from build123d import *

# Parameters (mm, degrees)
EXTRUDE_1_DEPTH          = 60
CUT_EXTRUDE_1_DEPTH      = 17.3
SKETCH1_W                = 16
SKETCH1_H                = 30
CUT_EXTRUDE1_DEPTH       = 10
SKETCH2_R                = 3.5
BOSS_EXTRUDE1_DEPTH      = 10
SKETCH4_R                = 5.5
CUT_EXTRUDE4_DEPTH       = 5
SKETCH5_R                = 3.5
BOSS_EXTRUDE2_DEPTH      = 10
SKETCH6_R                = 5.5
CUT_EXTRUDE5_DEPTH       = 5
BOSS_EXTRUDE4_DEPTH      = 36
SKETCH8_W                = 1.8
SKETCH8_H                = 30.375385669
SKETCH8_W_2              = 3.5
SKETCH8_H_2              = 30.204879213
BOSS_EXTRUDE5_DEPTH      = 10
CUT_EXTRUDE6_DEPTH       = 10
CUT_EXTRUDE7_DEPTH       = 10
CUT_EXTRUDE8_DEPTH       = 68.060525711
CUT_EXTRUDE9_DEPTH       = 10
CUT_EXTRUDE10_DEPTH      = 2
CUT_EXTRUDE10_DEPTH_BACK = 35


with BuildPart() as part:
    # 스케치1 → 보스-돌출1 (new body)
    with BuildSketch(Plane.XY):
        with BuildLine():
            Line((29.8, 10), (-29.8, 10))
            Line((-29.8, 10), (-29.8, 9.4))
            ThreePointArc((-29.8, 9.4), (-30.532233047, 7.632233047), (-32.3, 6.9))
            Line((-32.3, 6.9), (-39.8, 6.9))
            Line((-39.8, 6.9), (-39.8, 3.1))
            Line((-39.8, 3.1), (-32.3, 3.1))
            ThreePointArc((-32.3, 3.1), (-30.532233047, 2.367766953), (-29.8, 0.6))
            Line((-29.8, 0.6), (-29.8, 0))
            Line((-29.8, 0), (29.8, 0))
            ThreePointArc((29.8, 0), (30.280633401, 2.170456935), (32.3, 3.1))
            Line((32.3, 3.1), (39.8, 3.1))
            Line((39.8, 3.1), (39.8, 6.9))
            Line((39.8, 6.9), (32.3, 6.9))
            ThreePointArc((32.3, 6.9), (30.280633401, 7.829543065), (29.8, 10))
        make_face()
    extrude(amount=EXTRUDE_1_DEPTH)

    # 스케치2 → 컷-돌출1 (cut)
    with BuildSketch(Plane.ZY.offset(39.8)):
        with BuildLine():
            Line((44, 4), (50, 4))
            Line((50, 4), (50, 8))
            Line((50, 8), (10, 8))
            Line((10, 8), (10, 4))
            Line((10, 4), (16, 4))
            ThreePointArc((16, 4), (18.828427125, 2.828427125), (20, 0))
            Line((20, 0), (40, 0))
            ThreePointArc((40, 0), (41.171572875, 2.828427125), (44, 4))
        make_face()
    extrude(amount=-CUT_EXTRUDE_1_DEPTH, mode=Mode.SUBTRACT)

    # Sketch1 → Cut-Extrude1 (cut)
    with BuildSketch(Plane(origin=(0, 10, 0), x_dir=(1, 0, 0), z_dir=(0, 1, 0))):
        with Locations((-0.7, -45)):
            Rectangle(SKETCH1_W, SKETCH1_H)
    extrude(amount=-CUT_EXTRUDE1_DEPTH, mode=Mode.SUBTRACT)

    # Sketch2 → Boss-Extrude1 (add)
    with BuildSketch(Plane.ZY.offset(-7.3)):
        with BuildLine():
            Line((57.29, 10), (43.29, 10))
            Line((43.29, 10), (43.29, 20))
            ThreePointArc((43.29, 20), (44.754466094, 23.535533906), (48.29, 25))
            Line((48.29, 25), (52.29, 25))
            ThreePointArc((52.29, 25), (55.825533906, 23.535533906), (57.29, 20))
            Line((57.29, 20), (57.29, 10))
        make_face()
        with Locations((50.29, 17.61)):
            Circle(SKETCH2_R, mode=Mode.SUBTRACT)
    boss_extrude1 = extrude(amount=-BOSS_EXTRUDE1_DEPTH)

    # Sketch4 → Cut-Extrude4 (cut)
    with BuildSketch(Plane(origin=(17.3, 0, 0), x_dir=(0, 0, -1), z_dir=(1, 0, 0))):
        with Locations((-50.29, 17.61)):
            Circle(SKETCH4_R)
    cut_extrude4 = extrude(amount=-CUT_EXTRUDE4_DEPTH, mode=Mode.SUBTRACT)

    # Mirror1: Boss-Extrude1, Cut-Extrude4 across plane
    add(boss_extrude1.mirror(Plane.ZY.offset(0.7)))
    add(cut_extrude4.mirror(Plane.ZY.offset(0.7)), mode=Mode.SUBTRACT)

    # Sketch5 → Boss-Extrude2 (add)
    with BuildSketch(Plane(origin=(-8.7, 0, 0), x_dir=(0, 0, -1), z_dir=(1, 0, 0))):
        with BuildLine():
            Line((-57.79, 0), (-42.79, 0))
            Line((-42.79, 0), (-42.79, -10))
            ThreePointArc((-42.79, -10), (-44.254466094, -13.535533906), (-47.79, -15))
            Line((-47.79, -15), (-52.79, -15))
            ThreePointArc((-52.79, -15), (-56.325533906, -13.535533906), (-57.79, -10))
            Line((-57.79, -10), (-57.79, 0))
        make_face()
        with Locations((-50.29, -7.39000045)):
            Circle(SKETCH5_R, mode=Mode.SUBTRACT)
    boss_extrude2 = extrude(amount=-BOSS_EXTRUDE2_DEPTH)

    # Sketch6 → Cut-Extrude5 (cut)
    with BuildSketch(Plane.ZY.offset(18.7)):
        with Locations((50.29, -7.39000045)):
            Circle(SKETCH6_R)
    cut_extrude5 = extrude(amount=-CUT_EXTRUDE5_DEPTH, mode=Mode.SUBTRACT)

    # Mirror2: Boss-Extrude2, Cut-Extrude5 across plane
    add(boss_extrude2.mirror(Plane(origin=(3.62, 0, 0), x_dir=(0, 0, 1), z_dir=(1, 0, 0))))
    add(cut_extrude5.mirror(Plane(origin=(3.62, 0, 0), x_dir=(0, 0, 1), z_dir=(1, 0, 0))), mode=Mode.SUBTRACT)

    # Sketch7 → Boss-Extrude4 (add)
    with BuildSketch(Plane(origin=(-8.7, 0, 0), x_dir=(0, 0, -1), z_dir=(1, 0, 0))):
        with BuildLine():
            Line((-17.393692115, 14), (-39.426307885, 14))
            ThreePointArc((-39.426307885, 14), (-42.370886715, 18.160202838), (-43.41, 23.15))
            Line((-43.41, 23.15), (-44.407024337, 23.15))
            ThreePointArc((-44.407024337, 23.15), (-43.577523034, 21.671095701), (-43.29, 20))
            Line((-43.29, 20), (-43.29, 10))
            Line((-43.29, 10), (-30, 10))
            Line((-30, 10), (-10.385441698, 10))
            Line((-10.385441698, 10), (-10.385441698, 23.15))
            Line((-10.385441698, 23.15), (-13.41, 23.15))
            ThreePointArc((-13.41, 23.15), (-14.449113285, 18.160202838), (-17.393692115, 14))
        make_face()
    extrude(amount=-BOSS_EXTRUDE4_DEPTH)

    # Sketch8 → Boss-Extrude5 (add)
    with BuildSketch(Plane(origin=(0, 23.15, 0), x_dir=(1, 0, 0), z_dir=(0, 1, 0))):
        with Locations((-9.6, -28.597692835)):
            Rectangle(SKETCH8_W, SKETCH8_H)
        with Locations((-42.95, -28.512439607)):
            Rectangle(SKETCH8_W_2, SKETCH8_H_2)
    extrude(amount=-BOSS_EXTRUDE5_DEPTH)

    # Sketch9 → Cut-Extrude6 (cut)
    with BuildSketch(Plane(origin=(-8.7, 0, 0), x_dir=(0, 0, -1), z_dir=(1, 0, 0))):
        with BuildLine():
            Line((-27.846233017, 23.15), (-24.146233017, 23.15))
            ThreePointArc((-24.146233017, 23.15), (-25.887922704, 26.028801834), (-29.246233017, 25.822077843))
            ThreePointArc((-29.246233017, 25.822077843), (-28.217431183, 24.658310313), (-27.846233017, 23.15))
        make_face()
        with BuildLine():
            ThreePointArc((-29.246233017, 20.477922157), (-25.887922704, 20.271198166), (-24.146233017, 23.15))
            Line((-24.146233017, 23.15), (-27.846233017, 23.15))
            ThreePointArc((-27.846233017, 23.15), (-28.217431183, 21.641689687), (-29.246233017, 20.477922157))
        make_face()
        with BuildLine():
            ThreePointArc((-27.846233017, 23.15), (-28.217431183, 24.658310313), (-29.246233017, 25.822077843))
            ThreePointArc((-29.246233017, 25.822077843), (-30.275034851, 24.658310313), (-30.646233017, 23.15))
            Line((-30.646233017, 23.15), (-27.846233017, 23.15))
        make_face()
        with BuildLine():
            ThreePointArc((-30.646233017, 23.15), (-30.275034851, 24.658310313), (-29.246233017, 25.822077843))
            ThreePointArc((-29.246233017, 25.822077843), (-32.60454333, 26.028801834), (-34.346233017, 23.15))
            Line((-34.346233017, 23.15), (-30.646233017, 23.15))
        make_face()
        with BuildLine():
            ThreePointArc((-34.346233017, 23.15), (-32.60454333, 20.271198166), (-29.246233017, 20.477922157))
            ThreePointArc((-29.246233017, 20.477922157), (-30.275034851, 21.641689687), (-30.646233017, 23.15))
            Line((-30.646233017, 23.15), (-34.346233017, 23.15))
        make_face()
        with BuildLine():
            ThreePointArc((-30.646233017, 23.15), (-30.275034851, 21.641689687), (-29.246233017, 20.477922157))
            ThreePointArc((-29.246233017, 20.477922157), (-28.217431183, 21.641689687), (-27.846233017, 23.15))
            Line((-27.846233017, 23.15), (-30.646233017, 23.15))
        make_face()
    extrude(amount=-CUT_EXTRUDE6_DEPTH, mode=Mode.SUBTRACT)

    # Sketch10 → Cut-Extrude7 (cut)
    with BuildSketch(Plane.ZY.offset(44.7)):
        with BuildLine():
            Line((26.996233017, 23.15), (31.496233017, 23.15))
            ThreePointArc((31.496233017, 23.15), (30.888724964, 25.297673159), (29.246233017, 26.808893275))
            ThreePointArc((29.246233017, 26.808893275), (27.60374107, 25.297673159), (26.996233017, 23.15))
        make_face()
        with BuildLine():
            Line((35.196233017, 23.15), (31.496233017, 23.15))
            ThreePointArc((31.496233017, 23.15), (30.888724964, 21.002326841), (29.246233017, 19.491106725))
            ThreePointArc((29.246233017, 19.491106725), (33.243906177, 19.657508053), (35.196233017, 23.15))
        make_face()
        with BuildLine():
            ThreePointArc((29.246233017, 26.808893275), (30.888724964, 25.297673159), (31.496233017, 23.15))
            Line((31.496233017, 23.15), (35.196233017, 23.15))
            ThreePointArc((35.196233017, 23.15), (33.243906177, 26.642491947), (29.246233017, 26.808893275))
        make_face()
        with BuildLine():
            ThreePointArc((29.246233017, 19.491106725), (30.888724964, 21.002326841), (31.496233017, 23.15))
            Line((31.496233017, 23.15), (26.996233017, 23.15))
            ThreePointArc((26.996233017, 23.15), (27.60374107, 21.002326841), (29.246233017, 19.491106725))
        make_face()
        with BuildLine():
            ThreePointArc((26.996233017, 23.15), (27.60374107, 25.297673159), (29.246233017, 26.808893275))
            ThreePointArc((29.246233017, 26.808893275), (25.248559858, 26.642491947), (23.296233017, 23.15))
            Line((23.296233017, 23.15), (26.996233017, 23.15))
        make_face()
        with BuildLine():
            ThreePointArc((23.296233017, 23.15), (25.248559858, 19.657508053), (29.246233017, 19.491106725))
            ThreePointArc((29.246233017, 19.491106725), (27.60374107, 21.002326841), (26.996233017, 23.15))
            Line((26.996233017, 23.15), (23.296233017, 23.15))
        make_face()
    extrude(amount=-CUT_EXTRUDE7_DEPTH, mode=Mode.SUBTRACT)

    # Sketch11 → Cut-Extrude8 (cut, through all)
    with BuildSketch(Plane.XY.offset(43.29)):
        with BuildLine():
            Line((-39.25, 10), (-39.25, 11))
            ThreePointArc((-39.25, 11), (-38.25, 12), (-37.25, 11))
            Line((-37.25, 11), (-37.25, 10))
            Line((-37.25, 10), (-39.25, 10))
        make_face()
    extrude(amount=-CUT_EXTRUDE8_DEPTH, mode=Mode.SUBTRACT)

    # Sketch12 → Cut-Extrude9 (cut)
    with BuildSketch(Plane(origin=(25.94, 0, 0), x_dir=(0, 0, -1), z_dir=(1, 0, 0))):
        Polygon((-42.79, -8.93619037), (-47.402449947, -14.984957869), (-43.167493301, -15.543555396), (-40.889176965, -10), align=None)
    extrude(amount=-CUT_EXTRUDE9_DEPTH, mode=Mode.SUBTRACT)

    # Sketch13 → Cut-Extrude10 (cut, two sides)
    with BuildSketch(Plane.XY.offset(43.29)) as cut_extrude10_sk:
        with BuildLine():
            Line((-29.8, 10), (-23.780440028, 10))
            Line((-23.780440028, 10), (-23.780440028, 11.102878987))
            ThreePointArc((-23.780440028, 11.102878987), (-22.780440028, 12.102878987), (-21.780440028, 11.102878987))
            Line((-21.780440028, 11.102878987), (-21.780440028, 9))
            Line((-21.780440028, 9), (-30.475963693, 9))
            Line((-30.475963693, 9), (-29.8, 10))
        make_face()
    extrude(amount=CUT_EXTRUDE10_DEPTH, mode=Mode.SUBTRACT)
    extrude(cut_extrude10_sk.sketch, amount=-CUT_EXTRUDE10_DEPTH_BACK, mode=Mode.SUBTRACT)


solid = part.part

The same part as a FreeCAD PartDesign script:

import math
import FreeCAD as App
import Part
import Sketcher
from FreeCAD import Vector
Q = App.Units.Quantity

doc = App.newDocument("Part")
body = doc.addObject("PartDesign::Body", "Body")

# Sketch on XY plane
sketch1 = body.newObject("Sketcher::SketchObject", "Sketch")
sketch1.AttachmentSupport = (doc.getObject("XY_Plane"), [""])
sketch1.MapMode = "FlatFace"
sketch1.addGeometry([
    Part.LineSegment(Vector(29.8, 10, 0), Vector(-29.8, 10, 0)),  # 0
    Part.LineSegment(Vector(-29.8, 10, 0), Vector(-29.8, 9.4, 0)),  # 1
    Part.ArcOfCircle(Part.Circle(Vector(-32.3, 9.4, 0), Vector(0, 0, 1), 2.5), math.radians(-90), math.radians(0)),  # 2
    Part.LineSegment(Vector(-32.3, 6.9, 0), Vector(-39.8, 6.9, 0)),  # 3
    Part.LineSegment(Vector(-39.8, 6.9, 0), Vector(-39.8, 3.1, 0)),  # 4
    Part.LineSegment(Vector(-39.8, 3.1, 0), Vector(-32.3, 3.1, 0)),  # 5
    Part.ArcOfCircle(Part.Circle(Vector(-32.3, 0.6, 0), Vector(0, 0, 1), 2.5), math.radians(0), math.radians(90)),  # 6
    Part.LineSegment(Vector(-29.8, 0.6, 0), Vector(-29.8, 0, 0)),  # 7
    Part.LineSegment(Vector(-29.8, 0, 0), Vector(29.8, 0, 0)),  # 8
    Part.ArcOfCircle(Part.Circle(Vector(32.2, 0.6, 0), Vector(0, 0, 1), 2.5), math.radians(88), math.radians(194)),  # 9
    Part.LineSegment(Vector(32.3, 3.1, 0), Vector(39.8, 3.1, 0)),  # 10
    Part.LineSegment(Vector(39.8, 3.1, 0), Vector(39.8, 6.9, 0)),  # 11
    Part.LineSegment(Vector(39.8, 6.9, 0), Vector(32.3, 6.9, 0)),  # 12
    Part.ArcOfCircle(Part.Circle(Vector(32.2, 9.4, 0), Vector(0, 0, 1), 2.5), math.radians(166), math.radians(272)),  # 13
], False)
sketch1.addConstraint([
    Sketcher.Constraint("Coincident", 0, 2, 1, 1),
    Sketcher.Constraint("Tangent", 1, 2, 2, 2),
    Sketcher.Constraint("Tangent", 2, 1, 3, 1),
    Sketcher.Constraint("Coincident", 3, 2, 4, 1),
    Sketcher.Constraint("Coincident", 4, 2, 5, 1),
    Sketcher.Constraint("Tangent", 5, 2, 6, 2),
    Sketcher.Constraint("Tangent", 6, 1, 7, 1),
    Sketcher.Constraint("Coincident", 7, 2, 8, 1),
    Sketcher.Constraint("Coincident", 8, 2, 9, 2),
    Sketcher.Constraint("Coincident", 9, 1, 10, 1),
    Sketcher.Constraint("Coincident", 10, 2, 11, 1),
    Sketcher.Constraint("Coincident", 11, 2, 12, 1),
    Sketcher.Constraint("Coincident", 12, 2, 13, 2),
    Sketcher.Constraint("Coincident", 13, 1, 0, 1),
    Sketcher.Constraint("Horizontal", 0),
    Sketcher.Constraint("Vertical", 1),
    Sketcher.Constraint("Horizontal", 3),
    Sketcher.Constraint("Vertical", 4),
    Sketcher.Constraint("Horizontal", 5),
    Sketcher.Constraint("Vertical", 7),
    Sketcher.Constraint("Horizontal", 8),
    Sketcher.Constraint("Horizontal", 10),
    Sketcher.Constraint("Vertical", 11),
    Sketcher.Constraint("Horizontal", 12),
    Sketcher.Constraint("Equal", 2, 6),
    Sketcher.Constraint("Equal", 6, 9),
    Sketcher.Constraint("Equal", 9, 13),
    Sketcher.Constraint("Symmetric", 7, 2, 8, 2, -1, 1),
    Sketcher.Constraint("Symmetric", 5, 2, 9, 1, -2),
    Sketcher.Constraint("Symmetric", 3, 2, 11, 2, -2),
    Sketcher.Constraint("Vertical", 2, 3, 6, 3),
    Sketcher.Constraint("Vertical", 9, 3, 13, 3),
    Sketcher.Constraint("Vertical", 9, 1, 12, 2),
    Sketcher.Constraint("Vertical", 8, 2, 13, 1),
    Sketcher.Constraint("Radius", 2, Q("2.5 mm")),
    Sketcher.Constraint("DistanceX", 0, 2, 0, 1, Q("59.6 mm")),
    Sketcher.Constraint("DistanceX", 3, 2, 3, 1, Q("7.5 mm")),
    Sketcher.Constraint("DistanceY", 1, 2, 1, 1, Q("0.6 mm")),
    Sketcher.Constraint("DistanceY", 4, 2, 4, 1, Q("3.8 mm")),
])
pad1 = body.newObject("PartDesign::Pad", "Pad")
pad1.Profile = sketch1
pad1.Length = 60

# Sketch on YZ plane
sketch2 = body.newObject("Sketcher::SketchObject", "Sketch001")
sketch2.AttachmentSupport = (doc.getObject("YZ_Plane"), [""])
sketch2.MapMode = "FlatFace"
sketch2.AttachmentOffset = App.Placement(Vector(0, 0, -39.8), App.Rotation())
sketch2.addGeometry([
    Part.LineSegment(Vector(4, 44, 0), Vector(4, 50, 0)),  # 0
    Part.LineSegment(Vector(4, 50, 0), Vector(8, 50, 0)),  # 1
    Part.LineSegment(Vector(8, 50, 0), Vector(8, 10, 0)),  # 2
    Part.LineSegment(Vector(8, 10, 0), Vector(4, 10, 0)),  # 3
    Part.LineSegment(Vector(4, 10, 0), Vector(4, 16, 0)),  # 4
    Part.ArcOfCircle(Part.Circle(Vector(0, 16, 0), Vector(0, 0, 1), 4), math.radians(0), math.radians(90)),  # 5
    Part.LineSegment(Vector(0, 20, 0), Vector(0, 40, 0)),  # 6
    Part.ArcOfCircle(Part.Circle(Vector(0, 44, 0), Vector(0, 0, 1), 4), math.radians(-90), math.radians(0)),  # 7
], False)
sketch2.addConstraint([
    Sketcher.Constraint("Coincident", 0, 2, 1, 1),
    Sketcher.Constraint("Coincident", 1, 2, 2, 1),
    Sketcher.Constraint("Coincident", 2, 2, 3, 1),
    Sketcher.Constraint("Coincident", 3, 2, 4, 1),
    Sketcher.Constraint("Tangent", 4, 2, 5, 1),
    Sketcher.Constraint("Coincident", 5, 2, 6, 1),
    Sketcher.Constraint("Coincident", 6, 2, 7, 1),
    Sketcher.Constraint("Tangent", 7, 2, 0, 1),
    Sketcher.Constraint("Vertical", 0),
    Sketcher.Constraint("Horizontal", 1),
    Sketcher.Constraint("Vertical", 2),
    Sketcher.Constraint("Horizontal", 3),
    Sketcher.Constraint("Vertical", 4),
    Sketcher.Constraint("Vertical", 6),
    Sketcher.Constraint("Equal", 5, 7),
    Sketcher.Constraint("PointOnObject", 5, 3, -2),
    Sketcher.Constraint("PointOnObject", 7, 3, -2),
    Sketcher.Constraint("PointOnObject", 5, 2, -2),
    Sketcher.Constraint("Equal", 0, 4),
    Sketcher.Constraint("Radius", 5, Q("4 mm")),
    Sketcher.Constraint("DistanceX", 1, 1, 1, 2, Q("4 mm")),
    Sketcher.Constraint("DistanceY", 0, 1, 0, 2, Q("6 mm")),
    Sketcher.Constraint("DistanceY", 2, 2, 2, 1, Q("40 mm")),
    Sketcher.Constraint("DistanceY", -1, 1, 5, 3, Q("16 mm")),
])
pocket1 = body.newObject("PartDesign::Pocket", "Pocket")
pocket1.Profile = sketch2
pocket1.Length = 17.3
pocket1.Reversed = True

# Sketch on XZ plane
sketch3 = body.newObject("Sketcher::SketchObject", "Sketch002")
sketch3.AttachmentSupport = (doc.getObject("XZ_Plane"), [""])
sketch3.MapMode = "FlatFace"
sketch3.AttachmentOffset = App.Placement(Vector(0, 0, -10), App.Rotation())
sketch3.addGeometry([
    Part.LineSegment(Vector(-9, 30, 0), Vector(-9, 60, 0)),
    Part.LineSegment(Vector(-9, 60, 0), Vector(7, 60, 0)),
    Part.LineSegment(Vector(7, 60, 0), Vector(7, 30, 0)),
    Part.LineSegment(Vector(7, 30, 0), Vector(-9, 30, 0)),
], False)
sketch3.addConstraint([
    Sketcher.Constraint("Coincident", 0, 2, 1, 1),
    Sketcher.Constraint("Coincident", 1, 2, 2, 1),
    Sketcher.Constraint("Coincident", 2, 2, 3, 1),
    Sketcher.Constraint("Coincident", 3, 2, 0, 1),
    Sketcher.Constraint("Vertical", 0),
    Sketcher.Constraint("Horizontal", 1),
    Sketcher.Constraint("Vertical", 2),
    Sketcher.Constraint("Horizontal", 3),
    Sketcher.Constraint("DistanceX", 1, 1, 1, 2, Q("16 mm")),
    Sketcher.Constraint("DistanceY", 0, 1, 0, 2, Q("30 mm")),
    Sketcher.Constraint("DistanceY", -1, 1, 0, 2, Q("60 mm")),
    Sketcher.Constraint("DistanceX", 0, 2, -1, 1, Q("8.7 mm")),
])
pocket2 = body.newObject("PartDesign::Pocket", "Pocket001")
pocket2.Profile = sketch3
pocket2.Length = 10
pocket2.Reversed = True

# Sketch on YZ plane
sketch4 = body.newObject("Sketcher::SketchObject", "Sketch003")
sketch4.AttachmentSupport = (doc.getObject("YZ_Plane"), [""])
sketch4.MapMode = "FlatFace"
sketch4.AttachmentOffset = App.Placement(Vector(0, 0, 7.3), App.Rotation())
sketch4.addGeometry([
    Part.LineSegment(Vector(10, 43.3, 0), Vector(10, 57.3, 0)),  # 0
    Part.LineSegment(Vector(10, 57.3, 0), Vector(20, 57.3, 0)),  # 1
    Part.ArcOfCircle(Part.Circle(Vector(20, 52.3, 0), Vector(0, 0, 1), 5), math.radians(0), math.radians(90)),  # 2
    Part.LineSegment(Vector(25, 52.3, 0), Vector(25, 48.3, 0)),  # 3
    Part.ArcOfCircle(Part.Circle(Vector(20, 48.3, 0), Vector(0, 0, 1), 5), math.radians(-90), math.radians(0)),  # 4
    Part.LineSegment(Vector(20, 43.3, 0), Vector(10, 43.3, 0)),  # 5
    Part.Circle(Vector(17.6, 50.3, 0), Vector(0, 0, 1), 3.5),  # 6
], False)
sketch4.addConstraint([
    Sketcher.Constraint("Coincident", 0, 2, 1, 1),
    Sketcher.Constraint("Tangent", 1, 2, 2, 2),
    Sketcher.Constraint("Tangent", 2, 1, 3, 1),
    Sketcher.Constraint("Tangent", 3, 2, 4, 2),
    Sketcher.Constraint("Tangent", 4, 1, 5, 1),
    Sketcher.Constraint("Coincident", 5, 2, 0, 1),
    Sketcher.Constraint("Vertical", 0),
    Sketcher.Constraint("Horizontal", 1),
    Sketcher.Constraint("Vertical", 3),
    Sketcher.Constraint("Horizontal", 5),
    Sketcher.Constraint("Equal", 2, 4),
    Sketcher.Constraint("Diameter", 6, Q("7 mm")),
    Sketcher.Constraint("Radius", 2, Q("5 mm")),
    Sketcher.Constraint("DistanceX", 1, 1, 1, 2, Q("10 mm")),
    Sketcher.Constraint("DistanceY", 0, 1, 0, 2, Q("14 mm")),
    Sketcher.Constraint("DistanceX", -1, 1, 2, 3, Q("20 mm")),
    Sketcher.Constraint("DistanceY", 6, 3, 2, 3, Q("2 mm")),
    Sketcher.Constraint("DistanceY", -1, 1, 2, 3, Q("52.29 mm")),
    Sketcher.Constraint("DistanceX", -1, 1, 6, 3, Q("17.61 mm")),
])
pad2 = body.newObject("PartDesign::Pad", "Pad001")
pad2.Profile = sketch4
pad2.Length = 10

# Sketch on YZ plane
sketch5 = body.newObject("Sketcher::SketchObject", "Sketch004")
sketch5.AttachmentSupport = (doc.getObject("YZ_Plane"), [""])
sketch5.MapMode = "FlatFace"
sketch5.AttachmentOffset = App.Placement(Vector(0, 0, 17.3), App.Rotation())
sketch5.addGeometry(Part.Circle(Vector(18, 50, 0), Vector(0, 0, 1), 6), False)
sketch5.addConstraint([
    Sketcher.Constraint("Diameter", 0, Q("11 mm")),
    Sketcher.Constraint("DistanceX", -1, 1, 0, 3, Q("17.61 mm")),
    Sketcher.Constraint("DistanceY", -1, 1, 0, 3, Q("50.29 mm")),
])
pocket3 = body.newObject("PartDesign::Pocket", "Pocket002")
pocket3.Profile = sketch5
pocket3.Length = 5
doc.recompute()

datumplane = body.newObject("PartDesign::Plane", "DatumPlane")
datumplane.AttachmentSupport = (doc.getObject("YZ_Plane"), [""])
datumplane.MapMode = "FlatFace"
datumplane.AttachmentOffset = App.Placement(Vector(0, 0, -0.7), App.Rotation())
mirrored = body.newObject("PartDesign::Mirrored", "Mirrored")
mirrored.Originals = [pad2, pocket3]
mirrored.MirrorPlane = (datumplane, [""])
body.Tip = mirrored

# Sketch on YZ plane
sketch6 = body.newObject("Sketcher::SketchObject", "Sketch005")
sketch6.AttachmentSupport = (doc.getObject("YZ_Plane"), [""])
sketch6.MapMode = "FlatFace"
sketch6.AttachmentOffset = App.Placement(Vector(0, 0, -8.7), App.Rotation())
sketch6.addGeometry([
    Part.LineSegment(Vector(0, 42.8, 0), Vector(0, 57.8, 0)),  # 0
    Part.LineSegment(Vector(0, 57.8, 0), Vector(-10, 57.8, 0)),  # 1
    Part.ArcOfCircle(Part.Circle(Vector(-10, 52.8, 0), Vector(0, 0, 1), 5), math.radians(90), math.radians(180)),  # 2
    Part.LineSegment(Vector(-15, 52.8, 0), Vector(-15, 47.8, 0)),  # 3
    Part.ArcOfCircle(Part.Circle(Vector(-10, 47.8, 0), Vector(0, 0, 1), 5), math.radians(180), math.radians(270)),  # 4
    Part.LineSegment(Vector(-10, 42.8, 0), Vector(0, 42.8, 0)),  # 5
    Part.Circle(Vector(-7.4, 50.3, 0), Vector(0, 0, 1), 3.5),  # 6
], False)
sketch6.addConstraint([
    Sketcher.Constraint("Coincident", 0, 2, 1, 1),
    Sketcher.Constraint("Tangent", 1, 2, 2, 1),
    Sketcher.Constraint("Tangent", 2, 2, 3, 1),
    Sketcher.Constraint("Tangent", 3, 2, 4, 1),
    Sketcher.Constraint("Tangent", 4, 2, 5, 1),
    Sketcher.Constraint("Coincident", 5, 2, 0, 1),
    Sketcher.Constraint("Vertical", 0),
    Sketcher.Constraint("Horizontal", 1),
    Sketcher.Constraint("Vertical", 3),
    Sketcher.Constraint("Horizontal", 5),
    Sketcher.Constraint("Equal", 2, 4),
    Sketcher.Constraint("PointOnObject", 0, 2, -2),
    Sketcher.Constraint("Diameter", 6, Q("7 mm")),
    Sketcher.Constraint("Radius", 2, Q("5 mm")),
    Sketcher.Constraint("DistanceX", 1, 2, 1, 1, Q("10 mm")),
    Sketcher.Constraint("DistanceY", 0, 1, 0, 2, Q("15 mm")),
    Sketcher.Constraint("DistanceY", 6, 3, 2, 3, Q("2.5 mm")),
    Sketcher.Constraint("DistanceY", -1, 1, 2, 3, Q("52.79 mm")),
    Sketcher.Constraint("DistanceX", 6, 3, -1, 1, Q("7.39 mm")),
])
pad3 = body.newObject("PartDesign::Pad", "Pad002")
pad3.Profile = sketch6
pad3.Length = 10
pad3.Reversed = True

# Sketch on YZ plane
sketch7 = body.newObject("Sketcher::SketchObject", "Sketch006")
sketch7.AttachmentSupport = (doc.getObject("YZ_Plane"), [""])
sketch7.MapMode = "FlatFace"
sketch7.AttachmentOffset = App.Placement(Vector(0, 0, -18.7), App.Rotation())
sketch7.addGeometry(Part.Circle(Vector(-7, 50, 0), Vector(0, 0, 1), 6), False)
sketch7.addConstraint([
    Sketcher.Constraint("Diameter", 0, Q("11 mm")),
    Sketcher.Constraint("DistanceX", 0, 3, -1, 1, Q("7.39 mm")),
    Sketcher.Constraint("DistanceY", -1, 1, 0, 3, Q("50.29 mm")),
])
pocket4 = body.newObject("PartDesign::Pocket", "Pocket003")
pocket4.Profile = sketch7
pocket4.Length = 5
pocket4.Reversed = True
doc.recompute()

datumplane2 = body.newObject("PartDesign::Plane", "DatumPlane001")
datumplane2.AttachmentSupport = (doc.getObject("YZ_Plane"), [""])
datumplane2.MapMode = "FlatFace"
datumplane2.AttachmentOffset = App.Placement(Vector(0, 0, 3.62), App.Rotation())
mirrored2 = body.newObject("PartDesign::Mirrored", "Mirrored001")
mirrored2.Originals = [pad3, pocket4]
mirrored2.MirrorPlane = (datumplane2, [""])
body.Tip = mirrored2

# Sketch on YZ plane
sketch8 = body.newObject("Sketcher::SketchObject", "Sketch007")
sketch8.AttachmentSupport = (doc.getObject("YZ_Plane"), [""])
sketch8.MapMode = "FlatFace"
sketch8.AttachmentOffset = App.Placement(Vector(0, 0, -8.7), App.Rotation())
sketch8.addGeometry([
    Part.LineSegment(Vector(14, 17.4, 0), Vector(14, 39.4, 0)),  # 0
    Part.ArcOfCircle(Part.Circle(Vector(23.1, 30.9, 0), Vector(0, 0, 1), 12.5), math.radians(90), math.radians(137)),  # 1
    Part.LineSegment(Vector(23.1, 43.4, 0), Vector(23.1, 44.4, 0)),  # 2
    Part.ArcOfCircle(Part.Circle(Vector(20, 48.3, 0), Vector(0, 0, 1), 5), math.radians(-90), math.radians(-51)),  # 3
    Part.LineSegment(Vector(20, 43.3, 0), Vector(10, 43.3, 0)),  # 4
    Part.LineSegment(Vector(10, 43.3, 0), Vector(10, 10.4, 0)),  # 5
    Part.LineSegment(Vector(10, 10.4, 0), Vector(23.1, 10.4, 0)),  # 6
    Part.LineSegment(Vector(23.1, 10.4, 0), Vector(23.1, 13.4, 0)),  # 7
    Part.ArcOfCircle(Part.Circle(Vector(23.1, 25.9, 0), Vector(0, 0, 1), 12.5), math.radians(-137), math.radians(-90)),  # 8
], False)
sketch8.addConstraint([
    Sketcher.Constraint("Coincident", 0, 2, 1, 2),
    Sketcher.Constraint("Coincident", 1, 1, 2, 1),
    Sketcher.Constraint("Coincident", 2, 2, 3, 2),
    Sketcher.Constraint("Tangent", 3, 1, 4, 1),
    Sketcher.Constraint("Coincident", 4, 2, 5, 1),
    Sketcher.Constraint("Coincident", 5, 2, 6, 1),
    Sketcher.Constraint("Coincident", 6, 2, 7, 1),
    Sketcher.Constraint("Coincident", 7, 2, 8, 2),
    Sketcher.Constraint("Coincident", 8, 1, 0, 1),
    Sketcher.Constraint("Vertical", 0),
    Sketcher.Constraint("Vertical", 2),
    Sketcher.Constraint("Horizontal", 4),
    Sketcher.Constraint("Vertical", 5),
    Sketcher.Constraint("Horizontal", 6),
    Sketcher.Constraint("Vertical", 7),
    Sketcher.Constraint("Equal", 1, 8),
    Sketcher.Constraint("Vertical", 1, 3, 8, 3),
    Sketcher.Constraint("Vertical", 8, 3, 1, 1),
    Sketcher.Constraint("Vertical", 2, 2, 6, 2),
    Sketcher.Constraint("Radius", 3, Q("5 mm")),
    Sketcher.Constraint("Radius", 1, Q("12.5 mm")),
    Sketcher.Constraint("DistanceX", 4, 2, 4, 1, Q("10 mm")),
    Sketcher.Constraint("DistanceX", -1, 1, 3, 3, Q("20 mm")),
    Sketcher.Constraint("DistanceX", -1, 1, 0, 2, Q("14 mm")),
    Sketcher.Constraint("DistanceY", 8, 3, 1, 3, Q("5 mm")),
    Sketcher.Constraint("DistanceX", 6, 1, 6, 2, Q("13.15 mm")),
    Sketcher.Constraint("DistanceY", -1, 1, 1, 3, Q("30.91 mm")),
    Sketcher.Constraint("DistanceY", -1, 1, 3, 3, Q("48.29 mm")),
    Sketcher.Constraint("DistanceY", 5, 2, 5, 1, Q("32.904558 mm")),
])
pad4 = body.newObject("PartDesign::Pad", "Pad003")
pad4.Profile = sketch8
pad4.Length = 36
pad4.Reversed = True

# Sketch on XZ plane
sketch9 = body.newObject("Sketcher::SketchObject", "Sketch008")
sketch9.AttachmentSupport = (doc.getObject("XZ_Plane"), [""])
sketch9.MapMode = "FlatFace"
sketch9.AttachmentOffset = App.Placement(Vector(0, 0, -23.15), App.Rotation())
sketch9.addGeometry([
    Part.LineSegment(Vector(-10.5, 13.4, 0), Vector(-10.5, 43.8, 0)),  # 0
    Part.LineSegment(Vector(-10.5, 43.8, 0), Vector(-8.7, 43.8, 0)),  # 1
    Part.LineSegment(Vector(-8.7, 43.8, 0), Vector(-8.7, 13.4, 0)),  # 2
    Part.LineSegment(Vector(-8.7, 13.4, 0), Vector(-10.5, 13.4, 0)),  # 3
    Part.LineSegment(Vector(-44.7, 13.4, 0), Vector(-44.7, 43.6, 0)),  # 4
    Part.LineSegment(Vector(-44.7, 43.6, 0), Vector(-41.2, 43.6, 0)),  # 5
    Part.LineSegment(Vector(-41.2, 43.6, 0), Vector(-41.2, 13.4, 0)),  # 6
    Part.LineSegment(Vector(-41.2, 13.4, 0), Vector(-44.7, 13.4, 0)),  # 7
], False)
sketch9.addConstraint([
    Sketcher.Constraint("Coincident", 0, 2, 1, 1),
    Sketcher.Constraint("Coincident", 1, 2, 2, 1),
    Sketcher.Constraint("Coincident", 2, 2, 3, 1),
    Sketcher.Constraint("Coincident", 3, 2, 0, 1),
    Sketcher.Constraint("Coincident", 4, 2, 5, 1),
    Sketcher.Constraint("Coincident", 5, 2, 6, 1),
    Sketcher.Constraint("Coincident", 6, 2, 7, 1),
    Sketcher.Constraint("Coincident", 7, 2, 4, 1),
    Sketcher.Constraint("Vertical", 0),
    Sketcher.Constraint("Horizontal", 1),
    Sketcher.Constraint("Vertical", 2),
    Sketcher.Constraint("Horizontal", 3),
    Sketcher.Constraint("Vertical", 4),
    Sketcher.Constraint("Horizontal", 5),
    Sketcher.Constraint("Vertical", 6),
    Sketcher.Constraint("Horizontal", 7),
    Sketcher.Constraint("Horizontal", 3, 2, 6, 2),
    Sketcher.Constraint("DistanceX", 1, 1, 1, 2, Q("1.8 mm")),
    Sketcher.Constraint("DistanceX", 5, 1, 5, 2, Q("3.5 mm")),
    Sketcher.Constraint("DistanceX", 4, 2, 1, 2, Q("36 mm")),
    Sketcher.Constraint("DistanceX", 0, 2, -1, 1, Q("10.5 mm")),
    Sketcher.Constraint("DistanceY", -1, 1, 2, 2, Q("13.41 mm")),
    Sketcher.Constraint("DistanceY", 4, 1, 4, 2, Q("30.204879 mm")),
    Sketcher.Constraint("DistanceY", 0, 1, 0, 2, Q("30.375386 mm")),
])
pad5 = body.newObject("PartDesign::Pad", "Pad004")
pad5.Profile = sketch9
pad5.Length = 10

# Sketch on YZ plane
sketch10 = body.newObject("Sketcher::SketchObject", "Sketch009")
sketch10.AttachmentSupport = (doc.getObject("YZ_Plane"), [""])
sketch10.MapMode = "FlatFace"
sketch10.AttachmentOffset = App.Placement(Vector(0, 0, -8.7), App.Rotation())
sketch10.addGeometry([
    Part.ArcOfCircle(Part.Circle(Vector(23.1, 31.1, 0), Vector(0, 0, 1), 3.2), math.radians(-35), math.radians(90)),
    Part.ArcOfCircle(Part.Circle(Vector(23.1, 31.1, 0), Vector(0, 0, 1), 3.2), math.radians(90), math.radians(215)),
    Part.ArcOfCircle(Part.Circle(Vector(23.1, 27.4, 0), Vector(0, 0, 1), 3.2), math.radians(145), math.radians(270)),
    Part.ArcOfCircle(Part.Circle(Vector(23.1, 27.4, 0), Vector(0, 0, 1), 3.2), math.radians(-90), math.radians(35)),
], False)
sketch10.addConstraint([
    Sketcher.Constraint("Tangent", 0, 2, 1, 1),
    Sketcher.Constraint("Coincident", 1, 2, 2, 1),
    Sketcher.Constraint("Tangent", 2, 2, 3, 1),
    Sketcher.Constraint("Coincident", 3, 2, 0, 1),
    Sketcher.Constraint("Equal", 0, 1),
    Sketcher.Constraint("Equal", 1, 2),
    Sketcher.Constraint("Equal", 2, 3),
    Sketcher.Constraint("Horizontal", 1, 2, 3, 2),
    Sketcher.Constraint("Vertical", 3, 3, 0, 2),
    Sketcher.Constraint("Vertical", 0, 2, 2, 2),
    Sketcher.Constraint("Radius", 0, Q("3.25 mm")),
    Sketcher.Constraint("DistanceY", 2, 3, 0, 3, Q("3.7 mm")),
    Sketcher.Constraint("DistanceX", -1, 1, 0, 3, Q("23.15 mm")),
    Sketcher.Constraint("DistanceY", -1, 1, 0, 3, Q("31.096233 mm")),
])
pocket5 = body.newObject("PartDesign::Pocket", "Pocket004")
pocket5.Profile = sketch10
pocket5.Length = 10

# Sketch on YZ plane
sketch11 = body.newObject("Sketcher::SketchObject", "Sketch010")
sketch11.AttachmentSupport = (doc.getObject("YZ_Plane"), [""])
sketch11.MapMode = "FlatFace"
sketch11.AttachmentOffset = App.Placement(Vector(0, 0, -44.7), App.Rotation())
sketch11.addGeometry([
    Part.ArcOfCircle(Part.Circle(Vector(23.1, 31.1, 0), Vector(0, 0, 1), 4.1), math.radians(90), math.radians(207)),
    Part.ArcOfCircle(Part.Circle(Vector(23.2, 31.1, 0), Vector(0, 0, 1), 4.1), math.radians(-27), math.radians(90)),
    Part.ArcOfCircle(Part.Circle(Vector(23.1, 27.4, 0), Vector(0, 0, 1), 4.1), math.radians(-90), math.radians(27)),
    Part.ArcOfCircle(Part.Circle(Vector(23.1, 27.4, 0), Vector(0, 0, 1), 4.1), math.radians(153), math.radians(270)),
], False)
sketch11.addConstraint([
    Sketcher.Constraint("Tangent", 0, 1, 1, 2),
    Sketcher.Constraint("Coincident", 1, 1, 2, 2),
    Sketcher.Constraint("Tangent", 2, 1, 3, 2),
    Sketcher.Constraint("Coincident", 3, 1, 0, 2),
    Sketcher.Constraint("Equal", 0, 1),
    Sketcher.Constraint("Equal", 1, 2),
    Sketcher.Constraint("Equal", 2, 3),
    Sketcher.Constraint("Horizontal", 1, 1, 3, 1),
    Sketcher.Constraint("Vertical", 3, 3, 0, 1),
    Sketcher.Constraint("Vertical", 0, 1, 2, 1),
    Sketcher.Constraint("Radius", 0, Q("4.1 mm")),
    Sketcher.Constraint("DistanceY", 2, 3, 0, 3, Q("3.7 mm")),
    Sketcher.Constraint("DistanceX", -1, 1, 0, 3, Q("23.15 mm")),
    Sketcher.Constraint("DistanceY", -1, 1, 0, 3, Q("31.096233 mm")),
])
pocket6 = body.newObject("PartDesign::Pocket", "Pocket005")
pocket6.Profile = sketch11
pocket6.Length = 10
pocket6.Reversed = True

# Sketch on XY plane
sketch12 = body.newObject("Sketcher::SketchObject", "Sketch011")
sketch12.AttachmentSupport = (doc.getObject("XY_Plane"), [""])
sketch12.MapMode = "FlatFace"
sketch12.AttachmentOffset = App.Placement(Vector(0, 0, 43.29), App.Rotation())
sketch12.addGeometry([
    Part.LineSegment(Vector(-39.2, 11, 0), Vector(-39.2, 10, 0)),
    Part.LineSegment(Vector(-39.2, 10, 0), Vector(-37.2, 10, 0)),
    Part.LineSegment(Vector(-37.2, 10, 0), Vector(-37.2, 11, 0)),
    Part.ArcOfCircle(Part.Circle(Vector(-38.2, 11, 0), Vector(0, 0, 1), 1), math.radians(0), math.radians(180)),
], False)
sketch12.addConstraint([
    Sketcher.Constraint("Coincident", 0, 2, 1, 1),
    Sketcher.Constraint("Coincident", 1, 2, 2, 1),
    Sketcher.Constraint("Tangent", 2, 2, 3, 1),
    Sketcher.Constraint("Tangent", 3, 2, 0, 1),
    Sketcher.Constraint("Vertical", 0),
    Sketcher.Constraint("Horizontal", 1),
    Sketcher.Constraint("Vertical", 2),
    Sketcher.Constraint("Radius", 3, Q("1 mm")),
    Sketcher.Constraint("DistanceY", 0, 2, 0, 1, Q("1 mm")),
    Sketcher.Constraint("DistanceY", -1, 1, 3, 3, Q("11 mm")),
    Sketcher.Constraint("DistanceX", 3, 3, -1, 1, Q("38.25 mm")),
])
pocket7 = body.newObject("PartDesign::Pocket", "Pocket006")
pocket7.Profile = sketch12
pocket7.Type = "ThroughAll"

# Sketch on YZ plane
sketch13 = body.newObject("Sketcher::SketchObject", "Sketch012")
sketch13.AttachmentSupport = (doc.getObject("YZ_Plane"), [""])
sketch13.MapMode = "FlatFace"
sketch13.AttachmentOffset = App.Placement(Vector(0, 0, 25.94), App.Rotation())
sketch13.addGeometry([
    Part.LineSegment(Vector(-8.9, 42.8, 0), Vector(-15, 47.4, 0)),
    Part.LineSegment(Vector(-15, 47.4, 0), Vector(-15.5, 43.2, 0)),
    Part.LineSegment(Vector(-15.5, 43.2, 0), Vector(-10, 40.9, 0)),
    Part.LineSegment(Vector(-10, 40.9, 0), Vector(-8.9, 42.8, 0)),
], False)
sketch13.addConstraint([
    Sketcher.Constraint("Coincident", 0, 2, 1, 1),
    Sketcher.Constraint("Coincident", 1, 2, 2, 1),
    Sketcher.Constraint("Coincident", 2, 2, 3, 1),
    Sketcher.Constraint("Coincident", 3, 2, 0, 1),
    Sketcher.Constraint("DistanceX", 2, 2, -1, 1, Q("10 mm")),
    Sketcher.Constraint("DistanceY", -1, 1, 3, 2, Q("42.79 mm")),
    Sketcher.Constraint("Distance", 3, Q("2.178261 mm")),
    Sketcher.Constraint("DistanceY", -1, 1, 0, 2, Q("47.40245 mm")),
    Sketcher.Constraint("DistanceX", 3, 2, -1, 1, Q("8.93619 mm")),
    Sketcher.Constraint("Distance", 0, Q("7.606726 mm")),
    Sketcher.Constraint("Distance", 1, Q("4.271638 mm")),
    Sketcher.Constraint("Distance", 2, Q("5.993474 mm")),
])
pocket8 = body.newObject("PartDesign::Pocket", "Pocket007")
pocket8.Profile = sketch13
pocket8.Length = 10

# Sketch on XY plane
sketch14 = body.newObject("Sketcher::SketchObject", "Sketch013")
sketch14.AttachmentSupport = (doc.getObject("XY_Plane"), [""])
sketch14.MapMode = "FlatFace"
sketch14.AttachmentOffset = App.Placement(Vector(0, 0, 43.29), App.Rotation())
sketch14.addGeometry([
    Part.LineSegment(Vector(-23.8, 10, 0), Vector(-29.8, 10, 0)),  # 0
    Part.LineSegment(Vector(-29.8, 10, 0), Vector(-30.5, 9, 0)),  # 1
    Part.LineSegment(Vector(-30.5, 9, 0), Vector(-21.8, 9, 0)),  # 2
    Part.LineSegment(Vector(-21.8, 9, 0), Vector(-21.8, 11.1, 0)),  # 3
    Part.ArcOfCircle(Part.Circle(Vector(-22.8, 11.1, 0), Vector(0, 0, 1), 1), math.radians(0), math.radians(180)),  # 4
    Part.LineSegment(Vector(-23.8, 11.1, 0), Vector(-23.8, 10, 0)),  # 5
], False)
sketch14.addConstraint([
    Sketcher.Constraint("Coincident", 0, 2, 1, 1),
    Sketcher.Constraint("Coincident", 1, 2, 2, 1),
    Sketcher.Constraint("Coincident", 2, 2, 3, 1),
    Sketcher.Constraint("Tangent", 3, 2, 4, 1),
    Sketcher.Constraint("Tangent", 4, 2, 5, 1),
    Sketcher.Constraint("Coincident", 5, 2, 0, 1),
    Sketcher.Constraint("Horizontal", 0),
    Sketcher.Constraint("Horizontal", 2),
    Sketcher.Constraint("Vertical", 3),
    Sketcher.Constraint("Vertical", 5),
    Sketcher.Constraint("Radius", 4, Q("1 mm")),
    Sketcher.Constraint("DistanceY", -1, 1, 0, 2, Q("10 mm")),
    Sketcher.Constraint("DistanceY", -1, 1, 1, 2, Q("9 mm")),
    Sketcher.Constraint("DistanceX", 0, 2, -1, 1, Q("29.8 mm")),
    Sketcher.Constraint("DistanceX", 0, 2, 0, 1, Q("6.01956 mm")),
    Sketcher.Constraint("DistanceY", 3, 1, 3, 2, Q("2.102879 mm")),
    Sketcher.Constraint("DistanceX", 2, 1, 2, 2, Q("8.695524 mm")),
])
pocket9 = body.newObject("PartDesign::Pocket", "Pocket008")
pocket9.Profile = sketch14
pocket9.Type = "TwoLengths"
pocket9.Length = 2
pocket9.Length2 = 35
pocket9.Reversed = True

doc.recompute()
